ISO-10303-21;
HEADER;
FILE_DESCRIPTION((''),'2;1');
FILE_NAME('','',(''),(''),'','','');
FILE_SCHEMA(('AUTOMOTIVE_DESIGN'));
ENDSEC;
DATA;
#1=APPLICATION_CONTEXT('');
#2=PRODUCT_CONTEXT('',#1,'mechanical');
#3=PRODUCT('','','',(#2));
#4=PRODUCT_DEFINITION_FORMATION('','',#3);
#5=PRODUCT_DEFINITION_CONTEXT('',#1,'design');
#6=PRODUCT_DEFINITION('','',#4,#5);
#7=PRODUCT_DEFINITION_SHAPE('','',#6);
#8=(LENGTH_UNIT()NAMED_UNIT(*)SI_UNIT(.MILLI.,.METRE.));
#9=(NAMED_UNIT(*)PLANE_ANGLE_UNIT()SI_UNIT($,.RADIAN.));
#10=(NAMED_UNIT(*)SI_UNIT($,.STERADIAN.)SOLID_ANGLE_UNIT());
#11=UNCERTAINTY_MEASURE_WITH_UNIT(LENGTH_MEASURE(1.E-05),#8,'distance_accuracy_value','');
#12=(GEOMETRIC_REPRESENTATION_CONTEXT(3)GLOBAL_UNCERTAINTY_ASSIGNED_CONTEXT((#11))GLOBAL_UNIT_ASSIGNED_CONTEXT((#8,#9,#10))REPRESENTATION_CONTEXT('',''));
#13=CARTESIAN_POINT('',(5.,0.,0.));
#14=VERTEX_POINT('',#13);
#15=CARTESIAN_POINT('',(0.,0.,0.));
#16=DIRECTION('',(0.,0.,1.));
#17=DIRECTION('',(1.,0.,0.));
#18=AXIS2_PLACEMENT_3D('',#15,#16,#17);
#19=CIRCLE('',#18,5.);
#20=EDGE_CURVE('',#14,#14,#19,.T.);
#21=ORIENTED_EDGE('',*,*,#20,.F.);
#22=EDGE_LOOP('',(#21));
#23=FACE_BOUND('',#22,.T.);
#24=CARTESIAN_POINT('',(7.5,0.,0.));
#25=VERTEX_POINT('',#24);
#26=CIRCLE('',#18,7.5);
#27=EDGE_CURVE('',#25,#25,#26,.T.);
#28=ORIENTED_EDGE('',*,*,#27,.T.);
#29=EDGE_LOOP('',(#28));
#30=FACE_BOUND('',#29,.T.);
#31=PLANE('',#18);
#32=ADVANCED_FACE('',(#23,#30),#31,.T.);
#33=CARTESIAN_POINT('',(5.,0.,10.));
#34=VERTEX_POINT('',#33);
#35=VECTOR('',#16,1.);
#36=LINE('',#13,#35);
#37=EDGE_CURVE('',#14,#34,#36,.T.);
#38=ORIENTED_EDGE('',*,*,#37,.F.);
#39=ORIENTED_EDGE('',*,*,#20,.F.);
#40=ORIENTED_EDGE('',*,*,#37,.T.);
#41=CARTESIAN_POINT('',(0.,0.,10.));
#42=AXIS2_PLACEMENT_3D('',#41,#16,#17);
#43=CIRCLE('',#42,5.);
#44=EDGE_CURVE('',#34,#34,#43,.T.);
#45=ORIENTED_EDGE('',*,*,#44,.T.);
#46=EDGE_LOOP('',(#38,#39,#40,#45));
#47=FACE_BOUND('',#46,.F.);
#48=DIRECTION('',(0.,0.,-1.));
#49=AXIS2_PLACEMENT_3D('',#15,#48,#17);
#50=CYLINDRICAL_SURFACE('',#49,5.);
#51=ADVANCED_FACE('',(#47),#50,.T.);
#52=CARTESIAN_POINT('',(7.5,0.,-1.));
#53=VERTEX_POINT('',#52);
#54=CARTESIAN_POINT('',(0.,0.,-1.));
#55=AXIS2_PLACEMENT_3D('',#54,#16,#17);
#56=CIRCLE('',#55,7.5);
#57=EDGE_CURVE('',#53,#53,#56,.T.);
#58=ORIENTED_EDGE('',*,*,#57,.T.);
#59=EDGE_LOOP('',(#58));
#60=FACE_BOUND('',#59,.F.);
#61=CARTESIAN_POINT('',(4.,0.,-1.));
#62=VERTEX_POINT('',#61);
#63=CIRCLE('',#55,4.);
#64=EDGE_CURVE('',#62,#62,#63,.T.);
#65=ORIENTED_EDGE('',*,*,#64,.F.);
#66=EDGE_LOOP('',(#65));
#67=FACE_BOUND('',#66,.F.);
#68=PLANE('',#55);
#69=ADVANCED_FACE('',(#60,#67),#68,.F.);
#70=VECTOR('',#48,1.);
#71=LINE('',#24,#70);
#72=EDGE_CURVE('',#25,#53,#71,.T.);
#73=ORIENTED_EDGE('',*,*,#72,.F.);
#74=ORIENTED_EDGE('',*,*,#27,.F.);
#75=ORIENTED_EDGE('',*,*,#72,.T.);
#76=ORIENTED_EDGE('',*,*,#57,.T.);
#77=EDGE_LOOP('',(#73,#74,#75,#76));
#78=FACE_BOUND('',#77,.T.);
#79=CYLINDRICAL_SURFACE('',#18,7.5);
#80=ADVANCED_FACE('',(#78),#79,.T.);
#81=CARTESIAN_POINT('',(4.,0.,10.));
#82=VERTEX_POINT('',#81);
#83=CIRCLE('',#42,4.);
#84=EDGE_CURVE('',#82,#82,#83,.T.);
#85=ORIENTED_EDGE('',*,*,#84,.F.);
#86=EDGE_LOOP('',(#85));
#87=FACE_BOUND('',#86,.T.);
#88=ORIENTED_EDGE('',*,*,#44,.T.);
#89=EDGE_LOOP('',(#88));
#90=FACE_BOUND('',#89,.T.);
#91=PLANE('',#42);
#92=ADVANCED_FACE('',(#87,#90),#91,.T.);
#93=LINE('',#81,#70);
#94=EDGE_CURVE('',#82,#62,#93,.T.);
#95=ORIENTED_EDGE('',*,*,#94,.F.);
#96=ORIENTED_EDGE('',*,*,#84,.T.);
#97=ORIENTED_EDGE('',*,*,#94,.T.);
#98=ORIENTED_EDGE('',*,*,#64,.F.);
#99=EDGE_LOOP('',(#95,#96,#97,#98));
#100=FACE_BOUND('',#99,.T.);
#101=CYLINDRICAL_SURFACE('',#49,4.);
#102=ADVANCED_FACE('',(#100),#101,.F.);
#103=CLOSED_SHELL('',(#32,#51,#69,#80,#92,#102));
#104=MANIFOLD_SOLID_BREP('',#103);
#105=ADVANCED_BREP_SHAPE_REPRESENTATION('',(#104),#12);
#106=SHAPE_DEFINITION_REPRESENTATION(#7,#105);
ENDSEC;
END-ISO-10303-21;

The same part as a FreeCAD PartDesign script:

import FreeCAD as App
import Part
import Sketcher
Q = App.Units.Quantity

doc = App.newDocument("Part")
params = doc.addObject("Spreadsheet::Sheet", "Params")
for row, (alias, value) in enumerate([
    ("sketch1_diameter", "10 mm"),
    ("sketch1_diameter2", "8 mm"),
    ("pad1_length", "10 mm"),
    ("sketch2_diameter", "15 mm"),
    ("sketch2_diameter2", "8 mm"),
    ("pad2_length", "1 mm"),
], start=1):
    params.set(f"A{row}", alias)
    params.set(f"B{row}", "=" + value)
    params.setAlias(f"B{row}", alias)

body = doc.addObject("PartDesign::Body", "Body")

# Sketch on XY plane
sketch1 = body.newObject("Sketcher::SketchObject", "Sketch")
sketch1.AttachmentSupport = (doc.getObject("XY_Plane"), [""])
sketch1.MapMode = "FlatFace"
sketch1.addGeometry([
    Part.Circle(App.Vector(0, 0, 0), App.Vector(0, 0, 1), 5),
    Part.Circle(App.Vector(0, 0, 0), App.Vector(0, 0, 1), 4),
], False)
sketch1.addConstraint([
    Sketcher.Constraint("Coincident", 0, 3, -1, 1),
    Sketcher.Constraint("Coincident", 1, 3, -1, 1),
    Sketcher.Constraint("Diameter", 0, Q("10 mm")),
    Sketcher.Constraint("Diameter", 1, Q("8 mm")),
])
sketch1.setExpression("Constraints[2]", "Params.sketch1_diameter")
sketch1.setExpression("Constraints[3]", "Params.sketch1_diameter2")
pad1 = body.newObject("PartDesign::Pad", "Pad")
pad1.Profile = sketch1
pad1.setExpression("Length", "Params.pad1_length")

# Sketch on XY plane
sketch2 = body.newObject("Sketcher::SketchObject", "Sketch001")
sketch2.AttachmentSupport = (doc.getObject("XY_Plane"), [""])
sketch2.MapMode = "FlatFace"
sketch2.addGeometry([
    Part.Circle(App.Vector(0, 0, 0), App.Vector(0, 0, 1), 7.5),
    Part.Circle(App.Vector(0, 0, 0), App.Vector(0, 0, 1), 4),
], False)
sketch2.addConstraint([
    Sketcher.Constraint("Coincident", 0, 3, -1, 1),
    Sketcher.Constraint("Coincident", 1, 3, -1, 1),
    Sketcher.Constraint("Diameter", 0, Q("15 mm")),
    Sketcher.Constraint("Diameter", 1, Q("8 mm")),
])
sketch2.setExpression("Constraints[2]", "Params.sketch2_diameter")
sketch2.setExpression("Constraints[3]", "Params.sketch2_diameter2")
pad2 = body.newObject("PartDesign::Pad", "Pad001")
pad2.Profile = sketch2
pad2.setExpression("Length", "Params.pad2_length")
pad2.Reversed = True

doc.recompute()
